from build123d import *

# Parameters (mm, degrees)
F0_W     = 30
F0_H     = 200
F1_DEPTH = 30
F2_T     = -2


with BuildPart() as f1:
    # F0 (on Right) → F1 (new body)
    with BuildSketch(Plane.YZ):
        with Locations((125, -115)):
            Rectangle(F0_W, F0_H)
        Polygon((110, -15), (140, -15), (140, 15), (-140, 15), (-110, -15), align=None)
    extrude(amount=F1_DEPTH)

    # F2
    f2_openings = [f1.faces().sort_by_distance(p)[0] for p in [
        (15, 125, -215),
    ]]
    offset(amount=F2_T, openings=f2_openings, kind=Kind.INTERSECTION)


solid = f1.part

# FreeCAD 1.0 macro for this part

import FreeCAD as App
import Part
import Sketcher
Q = App.Units.Quantity


def faces_at(feature, points):
    """Names of the faces that lie closest to the given points."""
    faces = feature.Shape.Faces
    near = lambda p: min(range(len(faces)), key=lambda i: faces[i].distToShape(Part.Vertex(*p))[0])
    return sorted({f"Face{near(p) + 1}" for p in points})

doc = App.newDocument("Part")
body = doc.addObject("PartDesign::Body", "Body")

# Sketch on YZ plane
sketch1 = body.newObject("Sketcher::SketchObject", "Sketch")
sketch1.AttachmentSupport = (doc.getObject("YZ_Plane"), [""])
sketch1.MapMode = "FlatFace"
sketch1.addGeometry([
    Part.LineSegment(App.Vector(110, -15, 0), App.Vector(110, -215, 0)),  # 0
    Part.LineSegment(App.Vector(110, -215, 0), App.Vector(140, -215, 0)),  # 1
    Part.LineSegment(App.Vector(140, -215, 0), App.Vector(140, 15, 0)),  # 2
    Part.LineSegment(App.Vector(140, 15, 0), App.Vector(-140, 15, 0)),  # 3
    Part.LineSegment(App.Vector(-140, 15, 0), App.Vector(-110, -15, 0)),  # 4
    Part.LineSegment(App.Vector(-110, -15, 0), App.Vector(110, -15, 0)),  # 5
], False)
sketch1.addConstraint([
    Sketcher.Constraint("Coincident", 0, 2, 1, 1),
    Sketcher.Constraint("Coincident", 1, 2, 2, 1),
    Sketcher.Constraint("Coincident", 2, 2, 3, 1),
    Sketcher.Constraint("Coincident", 3, 2, 4, 1),
    Sketcher.Constraint("Coincident", 4, 2, 5, 1),
    Sketcher.Constraint("Coincident", 5, 2, 0, 1),
    Sketcher.Constraint("Vertical", 0),
    Sketcher.Constraint("Horizontal", 1),
    Sketcher.Constraint("Vertical", 2),
    Sketcher.Constraint("Horizontal", 3),
    Sketcher.Constraint("Horizontal", 5),
    Sketcher.Constraint("DistanceX", 1, 1, 1, 2, Q("30 mm")),
    Sketcher.Constraint("DistanceX", 3, 2, 3, 1, Q("280 mm")),
    Sketcher.Constraint("DistanceX", 5, 1, 5, 2, Q("220 mm")),
    Sketcher.Constraint("DistanceY", 0, 2, 0, 1, Q("200 mm")),
    Sketcher.Constraint("DistanceY", 2, 1, 2, 2, Q("230 mm")),
    Sketcher.Constraint("DistanceX", -1, 1, 0, 2, Q("110 mm")),
    Sketcher.Constraint("DistanceY", 0, 2, -1, 1, Q("215 mm")),
])
pad1 = body.newObject("PartDesign::Pad", "Pad")
pad1.Profile = sketch1
pad1.Length = 30
doc.recompute()

thickness = body.newObject("PartDesign::Thickness", "Thickness")
thickness.Base = (pad1, faces_at(pad1, [(15, 125, -215)]))
thickness.Value = 2
thickness.Reversed = True
thickness.Join = "Intersection"

doc.recompute()
